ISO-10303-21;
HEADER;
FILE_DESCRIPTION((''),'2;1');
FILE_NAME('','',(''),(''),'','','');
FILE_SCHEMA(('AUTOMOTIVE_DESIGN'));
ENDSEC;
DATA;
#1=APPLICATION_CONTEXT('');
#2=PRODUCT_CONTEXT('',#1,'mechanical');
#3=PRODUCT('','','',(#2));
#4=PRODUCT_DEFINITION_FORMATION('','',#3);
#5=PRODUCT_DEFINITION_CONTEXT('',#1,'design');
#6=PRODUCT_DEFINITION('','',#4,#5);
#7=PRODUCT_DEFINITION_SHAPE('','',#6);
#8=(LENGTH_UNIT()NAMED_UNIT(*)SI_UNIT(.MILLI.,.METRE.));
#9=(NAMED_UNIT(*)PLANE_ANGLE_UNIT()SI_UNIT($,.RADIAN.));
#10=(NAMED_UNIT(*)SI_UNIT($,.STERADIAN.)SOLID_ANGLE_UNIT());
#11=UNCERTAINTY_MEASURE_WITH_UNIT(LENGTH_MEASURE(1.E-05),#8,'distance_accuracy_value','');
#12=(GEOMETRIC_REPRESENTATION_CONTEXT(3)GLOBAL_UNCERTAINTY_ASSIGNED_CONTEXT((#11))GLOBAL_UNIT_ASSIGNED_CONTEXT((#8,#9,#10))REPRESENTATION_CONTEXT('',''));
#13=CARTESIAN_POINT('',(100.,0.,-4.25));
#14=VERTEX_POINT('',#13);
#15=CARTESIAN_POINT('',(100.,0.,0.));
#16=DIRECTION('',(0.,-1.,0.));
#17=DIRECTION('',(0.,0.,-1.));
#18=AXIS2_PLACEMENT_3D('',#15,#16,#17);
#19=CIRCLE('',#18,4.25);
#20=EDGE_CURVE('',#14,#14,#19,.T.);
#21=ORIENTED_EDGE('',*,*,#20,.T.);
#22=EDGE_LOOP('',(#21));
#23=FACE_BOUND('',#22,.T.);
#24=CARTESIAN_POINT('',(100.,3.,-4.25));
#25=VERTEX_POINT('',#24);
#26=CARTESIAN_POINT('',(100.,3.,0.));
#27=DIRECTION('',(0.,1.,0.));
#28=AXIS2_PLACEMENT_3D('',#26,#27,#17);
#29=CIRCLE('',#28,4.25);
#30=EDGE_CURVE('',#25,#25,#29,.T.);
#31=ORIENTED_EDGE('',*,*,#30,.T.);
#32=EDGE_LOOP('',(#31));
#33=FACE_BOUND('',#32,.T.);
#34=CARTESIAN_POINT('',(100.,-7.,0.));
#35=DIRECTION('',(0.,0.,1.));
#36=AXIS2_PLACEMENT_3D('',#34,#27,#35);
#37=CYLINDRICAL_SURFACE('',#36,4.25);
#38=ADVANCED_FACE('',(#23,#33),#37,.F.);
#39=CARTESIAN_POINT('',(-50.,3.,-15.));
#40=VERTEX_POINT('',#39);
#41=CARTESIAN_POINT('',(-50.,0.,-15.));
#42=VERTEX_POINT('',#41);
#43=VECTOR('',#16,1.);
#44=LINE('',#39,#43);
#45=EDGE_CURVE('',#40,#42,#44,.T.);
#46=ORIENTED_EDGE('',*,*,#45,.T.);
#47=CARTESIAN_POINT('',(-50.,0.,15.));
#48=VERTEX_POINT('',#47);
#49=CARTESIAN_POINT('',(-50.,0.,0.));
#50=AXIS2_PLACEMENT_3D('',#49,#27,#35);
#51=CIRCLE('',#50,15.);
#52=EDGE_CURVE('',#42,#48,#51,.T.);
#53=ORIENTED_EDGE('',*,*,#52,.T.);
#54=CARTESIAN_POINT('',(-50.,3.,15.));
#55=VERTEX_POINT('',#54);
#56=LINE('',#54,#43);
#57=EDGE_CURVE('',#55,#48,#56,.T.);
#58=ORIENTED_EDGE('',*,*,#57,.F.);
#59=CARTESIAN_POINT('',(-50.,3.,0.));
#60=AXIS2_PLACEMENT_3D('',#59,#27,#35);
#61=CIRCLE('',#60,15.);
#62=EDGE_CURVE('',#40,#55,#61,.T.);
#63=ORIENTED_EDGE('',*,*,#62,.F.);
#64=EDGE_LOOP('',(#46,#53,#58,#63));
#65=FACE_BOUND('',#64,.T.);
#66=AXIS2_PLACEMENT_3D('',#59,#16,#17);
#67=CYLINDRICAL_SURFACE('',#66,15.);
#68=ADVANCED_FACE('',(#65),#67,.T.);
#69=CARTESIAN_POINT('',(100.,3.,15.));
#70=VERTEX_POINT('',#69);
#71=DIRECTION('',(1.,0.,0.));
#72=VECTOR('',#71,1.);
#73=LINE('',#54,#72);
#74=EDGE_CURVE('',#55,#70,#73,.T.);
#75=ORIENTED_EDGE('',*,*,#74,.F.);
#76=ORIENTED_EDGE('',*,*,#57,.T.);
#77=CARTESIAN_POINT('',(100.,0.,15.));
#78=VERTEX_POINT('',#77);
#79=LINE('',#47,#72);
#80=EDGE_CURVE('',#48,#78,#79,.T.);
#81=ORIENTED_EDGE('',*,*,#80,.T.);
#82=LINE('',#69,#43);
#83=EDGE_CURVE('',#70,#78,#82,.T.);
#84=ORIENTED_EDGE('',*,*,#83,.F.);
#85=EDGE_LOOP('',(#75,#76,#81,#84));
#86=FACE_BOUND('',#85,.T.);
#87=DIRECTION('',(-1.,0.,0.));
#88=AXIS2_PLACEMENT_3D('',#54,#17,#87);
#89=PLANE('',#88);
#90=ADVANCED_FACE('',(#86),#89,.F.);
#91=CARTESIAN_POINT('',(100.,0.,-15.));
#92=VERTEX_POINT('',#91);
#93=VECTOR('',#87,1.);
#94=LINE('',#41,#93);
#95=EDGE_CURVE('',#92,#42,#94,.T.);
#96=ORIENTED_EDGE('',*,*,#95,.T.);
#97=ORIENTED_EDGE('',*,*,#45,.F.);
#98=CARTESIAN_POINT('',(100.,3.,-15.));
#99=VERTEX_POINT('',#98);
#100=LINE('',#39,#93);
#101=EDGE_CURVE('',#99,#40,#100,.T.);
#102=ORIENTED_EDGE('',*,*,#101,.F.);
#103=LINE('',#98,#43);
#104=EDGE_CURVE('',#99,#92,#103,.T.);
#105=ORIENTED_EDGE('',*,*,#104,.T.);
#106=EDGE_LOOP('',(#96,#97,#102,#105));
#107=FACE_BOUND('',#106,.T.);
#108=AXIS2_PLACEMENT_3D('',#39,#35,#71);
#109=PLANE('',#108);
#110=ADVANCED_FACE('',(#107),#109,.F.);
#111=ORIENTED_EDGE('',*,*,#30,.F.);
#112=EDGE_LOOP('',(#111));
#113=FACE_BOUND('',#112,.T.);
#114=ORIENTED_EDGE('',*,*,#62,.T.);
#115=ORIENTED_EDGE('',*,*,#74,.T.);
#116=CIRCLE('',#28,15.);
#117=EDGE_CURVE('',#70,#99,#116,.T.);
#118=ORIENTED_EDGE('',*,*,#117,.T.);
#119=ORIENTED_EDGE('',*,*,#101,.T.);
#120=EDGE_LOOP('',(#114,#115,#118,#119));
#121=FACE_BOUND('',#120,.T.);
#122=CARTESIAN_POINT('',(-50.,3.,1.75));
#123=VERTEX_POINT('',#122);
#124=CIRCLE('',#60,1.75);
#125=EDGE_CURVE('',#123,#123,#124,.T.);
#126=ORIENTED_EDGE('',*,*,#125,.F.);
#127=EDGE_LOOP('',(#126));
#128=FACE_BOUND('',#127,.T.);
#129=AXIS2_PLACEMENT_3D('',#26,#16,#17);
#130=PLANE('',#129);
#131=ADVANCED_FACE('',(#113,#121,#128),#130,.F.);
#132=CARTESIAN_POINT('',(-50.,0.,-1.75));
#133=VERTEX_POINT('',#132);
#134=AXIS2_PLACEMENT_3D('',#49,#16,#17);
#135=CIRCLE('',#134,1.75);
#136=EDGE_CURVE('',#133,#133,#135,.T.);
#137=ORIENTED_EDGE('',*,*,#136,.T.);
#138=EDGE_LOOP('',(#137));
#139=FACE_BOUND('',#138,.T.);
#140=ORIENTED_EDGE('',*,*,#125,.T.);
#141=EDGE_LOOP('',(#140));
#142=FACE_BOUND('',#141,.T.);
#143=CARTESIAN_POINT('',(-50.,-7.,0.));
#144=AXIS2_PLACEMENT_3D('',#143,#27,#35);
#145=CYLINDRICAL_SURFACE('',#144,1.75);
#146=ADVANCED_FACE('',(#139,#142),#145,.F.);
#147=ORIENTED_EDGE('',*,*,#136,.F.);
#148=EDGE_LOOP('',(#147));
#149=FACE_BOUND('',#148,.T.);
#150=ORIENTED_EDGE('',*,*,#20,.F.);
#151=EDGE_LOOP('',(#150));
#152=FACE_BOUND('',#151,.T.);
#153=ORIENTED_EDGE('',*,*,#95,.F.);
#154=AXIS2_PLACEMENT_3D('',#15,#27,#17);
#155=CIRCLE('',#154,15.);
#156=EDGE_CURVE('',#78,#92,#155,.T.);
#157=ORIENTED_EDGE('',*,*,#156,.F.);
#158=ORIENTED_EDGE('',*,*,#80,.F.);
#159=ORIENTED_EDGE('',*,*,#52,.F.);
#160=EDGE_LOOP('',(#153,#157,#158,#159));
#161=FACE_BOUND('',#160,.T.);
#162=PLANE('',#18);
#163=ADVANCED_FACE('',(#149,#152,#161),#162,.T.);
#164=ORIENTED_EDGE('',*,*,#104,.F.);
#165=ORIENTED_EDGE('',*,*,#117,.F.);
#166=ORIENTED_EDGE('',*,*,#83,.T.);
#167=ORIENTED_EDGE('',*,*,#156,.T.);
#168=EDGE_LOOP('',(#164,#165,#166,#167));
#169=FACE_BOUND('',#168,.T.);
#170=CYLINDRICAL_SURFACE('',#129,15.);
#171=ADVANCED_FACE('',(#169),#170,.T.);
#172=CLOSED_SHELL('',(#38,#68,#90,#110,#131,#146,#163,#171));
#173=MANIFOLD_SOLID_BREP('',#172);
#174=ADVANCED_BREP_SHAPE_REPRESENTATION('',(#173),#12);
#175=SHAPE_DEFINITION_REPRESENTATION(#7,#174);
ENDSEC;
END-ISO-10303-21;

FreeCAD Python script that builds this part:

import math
import FreeCAD as App
import Part
import Sketcher
Q = App.Units.Quantity

doc = App.newDocument("Part")
params = doc.addObject("Spreadsheet::Sheet", "Params")
for row, (alias, value) in enumerate([
    ("sketch1_radius", "15 mm"),
    ("sketch1_width", "150 mm"),
    ("pad1_length", "3 mm"),
    ("sketch2_diameter", "3.5 mm"),
    ("sketch2_diameter2", "8.5 mm"),
    ("pocket1_length", "10 mm"),
], start=1):
    params.set(f"A{row}", alias)
    params.set(f"B{row}", "=" + value)
    params.setAlias(f"B{row}", alias)

body = doc.addObject("PartDesign::Body", "Body")

sketch1 = body.newObject("Sketcher::SketchObject", "Sketch")
sketch1.AttachmentSupport = (doc.getObject("XZ_Plane"), [""])
sketch1.MapMode = "FlatFace"
sketch1.addGeometry([
    Part.LineSegment(App.Vector(100, -15, 0), App.Vector(-50, -15, 0)),
    Part.ArcOfCircle(Part.Circle(App.Vector(-50, 0, 0), App.Vector(0, 0, 1), 15), math.radians(90), math.radians(270)),
    Part.LineSegment(App.Vector(-50, 15, 0), App.Vector(100, 15, 0)),
    Part.ArcOfCircle(Part.Circle(App.Vector(100, 0, 0), App.Vector(0, 0, 1), 15), math.radians(-90), math.radians(90)),
], False)
sketch1.addConstraint([
    Sketcher.Constraint("Tangent", 0, 2, 1, 2),
    Sketcher.Constraint("Tangent", 1, 1, 2, 1),
    Sketcher.Constraint("Tangent", 2, 2, 3, 2),
    Sketcher.Constraint("Tangent", 3, 1, 0, 1),
    Sketcher.Constraint("Horizontal", 0),
    Sketcher.Constraint("Horizontal", 2),
    Sketcher.Constraint("PointOnObject", 1, 3, -1),
    Sketcher.Constraint("Radius", 1, Q("15 mm")),
    Sketcher.Constraint("DistanceX", 0, 2, 0, 1, Q("150 mm")),
    Sketcher.Constraint("DistanceX", 1, 3, -1, 1, Q("50 mm")),
])
sketch1.setExpression("Constraints[7]", "Params.sketch1_radius")
sketch1.setExpression("Constraints[8]", "Params.sketch1_width")
pad1 = body.newObject("PartDesign::Pad", "Pad")
pad1.Profile = sketch1
pad1.setExpression("Length", "Params.pad1_length")
pad1.Reversed = True

sketch2 = body.newObject("Sketcher::SketchObject", "Sketch001")
sketch2.AttachmentSupport = (doc.getObject("XZ_Plane"), [""])
sketch2.MapMode = "FlatFace"
sketch2.AttachmentOffset = App.Placement(App.Vector(0, 0, -3), App.Rotation())
sketch2.addGeometry([
    Part.Circle(App.Vector(-50, 0, 0), App.Vector(0, 0, 1), 1.8),
    Part.Circle(App.Vector(100, 0, 0), App.Vector(0, 0, 1), 4.2),
], False)
sketch2.addConstraint([
    Sketcher.Constraint("PointOnObject", 0, 3, -1),
    Sketcher.Constraint("PointOnObject", 1, 3, -1),
    Sketcher.Constraint("Diameter", 0, Q("3.5 mm")),
    Sketcher.Constraint("Diameter", 1, Q("8.5 mm")),
    Sketcher.Constraint("DistanceX", 0, 3, -1, 1, Q("50 mm")),
    Sketcher.Constraint("DistanceX", -1, 1, 1, 3, Q("100 mm")),
])
sketch2.setExpression("Constraints[2]", "Params.sketch2_diameter")
sketch2.setExpression("Constraints[3]", "Params.sketch2_diameter2")
pocket1 = body.newObject("PartDesign::Pocket", "Pocket")
pocket1.Profile = sketch2
pocket1.setExpression("Length", "Params.pocket1_length")
pocket1.Reversed = True

doc.recompute()
